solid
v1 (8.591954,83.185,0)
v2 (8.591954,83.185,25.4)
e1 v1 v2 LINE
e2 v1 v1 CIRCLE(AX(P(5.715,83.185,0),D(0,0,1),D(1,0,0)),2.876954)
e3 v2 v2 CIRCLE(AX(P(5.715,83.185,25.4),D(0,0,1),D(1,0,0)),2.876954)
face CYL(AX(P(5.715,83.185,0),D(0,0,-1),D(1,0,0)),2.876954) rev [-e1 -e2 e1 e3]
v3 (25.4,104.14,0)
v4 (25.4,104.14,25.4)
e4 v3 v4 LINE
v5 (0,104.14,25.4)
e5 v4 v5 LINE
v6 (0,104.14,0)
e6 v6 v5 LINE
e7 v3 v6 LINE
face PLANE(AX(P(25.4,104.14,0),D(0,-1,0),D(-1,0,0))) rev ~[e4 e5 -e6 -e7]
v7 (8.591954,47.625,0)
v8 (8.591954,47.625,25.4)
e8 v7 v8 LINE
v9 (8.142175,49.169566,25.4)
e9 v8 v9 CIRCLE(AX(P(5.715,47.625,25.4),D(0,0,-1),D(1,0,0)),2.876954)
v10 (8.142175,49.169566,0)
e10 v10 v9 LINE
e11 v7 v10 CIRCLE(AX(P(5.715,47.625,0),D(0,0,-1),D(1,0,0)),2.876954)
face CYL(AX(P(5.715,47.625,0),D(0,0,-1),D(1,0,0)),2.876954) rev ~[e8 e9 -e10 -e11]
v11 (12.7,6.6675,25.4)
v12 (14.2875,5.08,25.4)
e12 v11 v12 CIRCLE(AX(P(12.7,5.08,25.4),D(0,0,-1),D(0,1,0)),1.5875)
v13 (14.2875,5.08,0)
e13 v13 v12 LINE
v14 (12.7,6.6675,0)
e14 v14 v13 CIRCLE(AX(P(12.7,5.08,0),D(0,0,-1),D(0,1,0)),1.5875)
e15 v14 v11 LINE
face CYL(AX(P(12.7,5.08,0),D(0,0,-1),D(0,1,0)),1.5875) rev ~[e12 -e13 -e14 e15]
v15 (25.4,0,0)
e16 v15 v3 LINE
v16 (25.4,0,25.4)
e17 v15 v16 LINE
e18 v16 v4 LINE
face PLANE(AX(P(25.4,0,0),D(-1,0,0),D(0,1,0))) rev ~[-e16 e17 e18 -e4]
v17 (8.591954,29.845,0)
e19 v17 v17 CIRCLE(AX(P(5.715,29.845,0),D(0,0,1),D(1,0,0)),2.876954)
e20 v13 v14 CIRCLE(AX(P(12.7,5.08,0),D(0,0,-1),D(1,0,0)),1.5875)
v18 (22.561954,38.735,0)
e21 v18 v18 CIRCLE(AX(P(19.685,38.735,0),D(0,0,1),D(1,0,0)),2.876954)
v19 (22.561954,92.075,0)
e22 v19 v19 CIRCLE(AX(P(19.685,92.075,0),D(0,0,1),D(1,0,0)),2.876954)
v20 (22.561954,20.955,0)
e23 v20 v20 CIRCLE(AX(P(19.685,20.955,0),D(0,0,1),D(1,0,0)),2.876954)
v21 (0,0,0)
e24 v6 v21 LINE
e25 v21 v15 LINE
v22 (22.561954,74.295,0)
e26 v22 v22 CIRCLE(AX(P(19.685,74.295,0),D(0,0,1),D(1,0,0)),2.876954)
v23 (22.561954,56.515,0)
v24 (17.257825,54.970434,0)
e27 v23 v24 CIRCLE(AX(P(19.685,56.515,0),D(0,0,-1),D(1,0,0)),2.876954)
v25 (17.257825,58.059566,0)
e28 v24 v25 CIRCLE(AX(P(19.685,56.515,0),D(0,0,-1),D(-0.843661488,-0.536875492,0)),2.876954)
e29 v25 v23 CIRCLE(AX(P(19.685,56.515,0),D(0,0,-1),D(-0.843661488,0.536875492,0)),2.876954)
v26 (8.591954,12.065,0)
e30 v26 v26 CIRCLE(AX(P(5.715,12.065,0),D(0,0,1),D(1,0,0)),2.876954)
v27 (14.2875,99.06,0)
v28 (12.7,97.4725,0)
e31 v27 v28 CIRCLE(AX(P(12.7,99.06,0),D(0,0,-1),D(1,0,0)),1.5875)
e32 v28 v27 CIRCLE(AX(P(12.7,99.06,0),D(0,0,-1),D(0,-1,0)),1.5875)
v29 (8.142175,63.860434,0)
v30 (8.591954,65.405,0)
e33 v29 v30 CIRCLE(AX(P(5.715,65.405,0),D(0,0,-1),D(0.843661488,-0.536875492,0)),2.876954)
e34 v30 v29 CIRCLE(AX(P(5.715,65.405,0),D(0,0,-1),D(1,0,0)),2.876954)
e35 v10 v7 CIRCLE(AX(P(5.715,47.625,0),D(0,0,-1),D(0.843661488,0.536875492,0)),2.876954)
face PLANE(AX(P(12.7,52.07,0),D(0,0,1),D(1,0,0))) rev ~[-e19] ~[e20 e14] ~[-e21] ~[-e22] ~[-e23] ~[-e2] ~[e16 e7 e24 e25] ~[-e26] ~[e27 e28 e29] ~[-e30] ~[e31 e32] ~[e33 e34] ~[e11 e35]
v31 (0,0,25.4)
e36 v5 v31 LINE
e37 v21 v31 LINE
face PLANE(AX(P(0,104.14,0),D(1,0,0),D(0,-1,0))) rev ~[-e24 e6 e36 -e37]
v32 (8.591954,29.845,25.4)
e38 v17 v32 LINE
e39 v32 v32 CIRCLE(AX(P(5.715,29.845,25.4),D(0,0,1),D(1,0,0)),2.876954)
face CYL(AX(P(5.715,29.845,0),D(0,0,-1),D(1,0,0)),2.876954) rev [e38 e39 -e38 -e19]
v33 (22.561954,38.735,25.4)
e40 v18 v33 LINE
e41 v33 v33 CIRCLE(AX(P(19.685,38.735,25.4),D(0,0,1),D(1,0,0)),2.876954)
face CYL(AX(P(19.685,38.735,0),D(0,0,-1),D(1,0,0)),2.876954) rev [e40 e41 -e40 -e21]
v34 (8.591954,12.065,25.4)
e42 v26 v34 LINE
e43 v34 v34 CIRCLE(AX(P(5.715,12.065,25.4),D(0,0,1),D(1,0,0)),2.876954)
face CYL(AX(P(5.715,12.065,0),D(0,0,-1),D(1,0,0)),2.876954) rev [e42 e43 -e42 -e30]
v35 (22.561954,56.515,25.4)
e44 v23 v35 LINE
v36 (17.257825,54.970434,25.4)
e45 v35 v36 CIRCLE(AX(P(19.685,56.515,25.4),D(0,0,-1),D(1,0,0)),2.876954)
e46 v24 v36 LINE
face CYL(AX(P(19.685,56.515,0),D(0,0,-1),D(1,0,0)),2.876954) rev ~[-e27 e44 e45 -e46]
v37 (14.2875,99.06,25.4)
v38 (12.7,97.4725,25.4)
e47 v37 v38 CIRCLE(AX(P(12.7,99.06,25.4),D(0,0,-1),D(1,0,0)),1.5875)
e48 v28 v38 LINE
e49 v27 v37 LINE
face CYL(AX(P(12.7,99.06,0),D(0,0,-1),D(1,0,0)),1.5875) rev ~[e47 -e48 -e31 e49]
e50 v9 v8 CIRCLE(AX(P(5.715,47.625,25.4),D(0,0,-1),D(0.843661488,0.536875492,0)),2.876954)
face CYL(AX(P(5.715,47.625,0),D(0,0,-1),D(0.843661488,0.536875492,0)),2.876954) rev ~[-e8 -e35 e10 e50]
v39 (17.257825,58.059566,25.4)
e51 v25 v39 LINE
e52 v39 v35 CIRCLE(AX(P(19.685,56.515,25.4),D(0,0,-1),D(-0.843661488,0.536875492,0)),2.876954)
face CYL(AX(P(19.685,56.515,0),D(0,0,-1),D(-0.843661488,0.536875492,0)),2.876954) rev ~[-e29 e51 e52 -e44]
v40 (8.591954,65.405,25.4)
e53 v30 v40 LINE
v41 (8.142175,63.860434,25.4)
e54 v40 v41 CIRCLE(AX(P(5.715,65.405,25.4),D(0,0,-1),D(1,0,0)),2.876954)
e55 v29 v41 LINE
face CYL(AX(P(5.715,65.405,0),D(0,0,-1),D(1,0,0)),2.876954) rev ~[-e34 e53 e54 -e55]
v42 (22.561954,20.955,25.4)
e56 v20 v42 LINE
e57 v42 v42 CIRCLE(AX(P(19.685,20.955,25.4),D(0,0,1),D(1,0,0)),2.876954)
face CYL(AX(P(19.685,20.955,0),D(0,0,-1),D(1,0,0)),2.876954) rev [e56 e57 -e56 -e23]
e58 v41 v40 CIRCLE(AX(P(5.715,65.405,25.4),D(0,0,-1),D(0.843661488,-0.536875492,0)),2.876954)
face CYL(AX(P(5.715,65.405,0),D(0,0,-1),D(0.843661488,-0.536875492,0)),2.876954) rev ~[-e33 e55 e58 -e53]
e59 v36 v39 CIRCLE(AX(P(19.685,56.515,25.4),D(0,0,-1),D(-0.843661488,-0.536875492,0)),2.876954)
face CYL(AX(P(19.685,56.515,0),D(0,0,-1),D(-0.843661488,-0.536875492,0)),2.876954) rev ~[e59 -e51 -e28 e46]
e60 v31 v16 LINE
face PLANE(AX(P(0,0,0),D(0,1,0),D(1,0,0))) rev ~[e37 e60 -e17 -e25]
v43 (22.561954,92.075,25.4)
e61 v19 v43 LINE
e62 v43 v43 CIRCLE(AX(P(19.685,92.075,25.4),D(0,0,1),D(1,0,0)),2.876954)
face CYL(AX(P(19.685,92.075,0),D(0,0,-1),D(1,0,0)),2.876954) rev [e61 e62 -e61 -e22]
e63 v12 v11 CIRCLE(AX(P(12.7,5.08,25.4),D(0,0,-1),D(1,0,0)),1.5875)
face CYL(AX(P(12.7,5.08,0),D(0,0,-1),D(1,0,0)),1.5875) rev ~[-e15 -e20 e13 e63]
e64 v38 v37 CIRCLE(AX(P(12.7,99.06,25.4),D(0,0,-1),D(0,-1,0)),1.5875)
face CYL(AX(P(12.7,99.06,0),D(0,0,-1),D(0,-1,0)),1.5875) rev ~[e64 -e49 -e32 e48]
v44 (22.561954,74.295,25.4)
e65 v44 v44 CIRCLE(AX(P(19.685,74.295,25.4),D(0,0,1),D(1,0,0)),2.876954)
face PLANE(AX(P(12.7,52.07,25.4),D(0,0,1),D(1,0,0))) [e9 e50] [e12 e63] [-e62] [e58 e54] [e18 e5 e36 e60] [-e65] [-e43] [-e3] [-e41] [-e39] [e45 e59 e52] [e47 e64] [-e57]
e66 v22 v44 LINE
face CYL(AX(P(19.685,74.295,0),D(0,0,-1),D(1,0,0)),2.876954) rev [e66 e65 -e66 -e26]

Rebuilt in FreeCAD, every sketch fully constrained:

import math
import FreeCAD as App
import Part
import Sketcher
from FreeCAD import Vector
Q = App.Units.Quantity

doc = App.newDocument("Part")
params = doc.addObject("Spreadsheet::Sheet", "Params")
for row, (alias, value) in enumerate([
    ("sketch1_width", "1 in"),
    ("sketch1_height", "4.1 in"),
    ("sketch1_radius", "0.0625 in"),
    ("pad1_length", "1 in"),
], start=1):
    params.set(f"A{row}", alias)
    params.set(f"B{row}", "=" + value)
    params.setAlias(f"B{row}", alias)

body = doc.addObject("PartDesign::Body", "Body")

# Sketch on XY plane
sketch1 = body.newObject("Sketcher::SketchObject", "Sketch")
sketch1.AttachmentSupport = (doc.getObject("XY_Plane"), [""])
sketch1.MapMode = "FlatFace"
sketch1.addGeometry(Part.LineSegment(Vector(0, 0, 0), Vector(25.4, 0, 0)), False)
sketch1.addGeometry(Part.LineSegment(Vector(25.4, 0, 0), Vector(25.4, 104.1, 0)), False)
sketch1.addGeometry(Part.LineSegment(Vector(25.4, 104.1, 0), Vector(0, 104.1, 0)), False)
sketch1.addGeometry(Part.LineSegment(Vector(0, 104.1, 0), Vector(0, 0, 0)), False)
sketch1.addGeometry(Part.Circle(Vector(5.7, 12.1, 0), Vector(0, 0, 1), 2.9), False)
sketch1.addGeometry(Part.Circle(Vector(5.7, 29.8, 0), Vector(0, 0, 1), 2.9), False)
sketch1.addGeometry(Part.ArcOfCircle(Part.Circle(Vector(5.7, 47.6, 0), Vector(0, 0, 1), 2.9), math.radians(0), math.radians(32)), False)
sketch1.addGeometry(Part.ArcOfCircle(Part.Circle(Vector(5.7, 47.6, 0), Vector(0, 0, 1), 2.9), math.radians(32), math.radians(360)), False)
sketch1.addGeometry(Part.ArcOfCircle(Part.Circle(Vector(12.7, 5.1, 0), Vector(0, 0, 1), 1.6), math.radians(0), math.radians(90)), False)
sketch1.addGeometry(Part.ArcOfCircle(Part.Circle(Vector(12.7, 5.1, 0), Vector(0, 0, 1), 1.6), math.radians(90), math.radians(360)), False)
sketch1.addGeometry(Part.Circle(Vector(19.7, 21, 0), Vector(0, 0, 1), 2.9), False)
sketch1.addGeometry(Part.Circle(Vector(19.7, 38.7, 0), Vector(0, 0, 1), 2.9), False)
sketch1.addGeometry(Part.ArcOfCircle(Part.Circle(Vector(5.7, 65.4, 0), Vector(0, 0, 1), 2.9), math.radians(0), math.radians(328)), False)
sketch1.addGeometry(Part.ArcOfCircle(Part.Circle(Vector(5.7, 65.4, 0), Vector(0, 0, 1), 2.9), math.radians(-32), math.radians(0)), False)
sketch1.addGeometry(Part.Circle(Vector(5.7, 83.2, 0), Vector(0, 0, 1), 2.9), False)
sketch1.addGeometry(Part.ArcOfCircle(Part.Circle(Vector(19.7, 56.5, 0), Vector(0, 0, 1), 2.9), math.radians(-148), math.radians(0)), False)
sketch1.addGeometry(Part.ArcOfCircle(Part.Circle(Vector(19.7, 56.5, 0), Vector(0, 0, 1), 2.9), math.radians(148), math.radians(212)), False)
sketch1.addGeometry(Part.ArcOfCircle(Part.Circle(Vector(19.7, 56.5, 0), Vector(0, 0, 1), 2.9), math.radians(0), math.radians(148)), False)
sketch1.addGeometry(Part.Circle(Vector(19.7, 74.3, 0), Vector(0, 0, 1), 2.9), False)
sketch1.addGeometry(Part.ArcOfCircle(Part.Circle(Vector(12.7, 99.1, 0), Vector(0, 0, 1), 1.6), math.radians(0), math.radians(270)), False)
sketch1.addGeometry(Part.ArcOfCircle(Part.Circle(Vector(12.7, 99.1, 0), Vector(0, 0, 1), 1.6), math.radians(-90), math.radians(0)), False)
sketch1.addGeometry(Part.Circle(Vector(19.7, 92.1, 0), Vector(0, 0, 1), 2.9), False)
sketch1.addConstraint(Sketcher.Constraint("Coincident", 0, 2, 1, 1))
sketch1.addConstraint(Sketcher.Constraint("Coincident", 1, 2, 2, 1))
sketch1.addConstraint(Sketcher.Constraint("Coincident", 2, 2, 3, 1))
sketch1.addConstraint(Sketcher.Constraint("Coincident", 3, 2, 0, 1))
sketch1.addConstraint(Sketcher.Constraint("Tangent", 6, 1, 7, 2))
sketch1.addConstraint(Sketcher.Constraint("Coincident", 7, 1, 6, 2))
sketch1.addConstraint(Sketcher.Constraint("Tangent", 8, 1, 9, 2))
sketch1.addConstraint(Sketcher.Constraint("Coincident", 9, 1, 8, 2))
sketch1.addConstraint(Sketcher.Constraint("Tangent", 12, 1, 13, 2))
sketch1.addConstraint(Sketcher.Constraint("Coincident", 13, 1, 12, 2))
sketch1.addConstraint(Sketcher.Constraint("Tangent", 15, 1, 16, 2))
sketch1.addConstraint(Sketcher.Constraint("Tangent", 16, 1, 17, 2))
sketch1.addConstraint(Sketcher.Constraint("Tangent", 17, 1, 15, 2))
sketch1.addConstraint(Sketcher.Constraint("Tangent", 19, 1, 20, 2))
sketch1.addConstraint(Sketcher.Constraint("Coincident", 20, 1, 19, 2))
sketch1.addConstraint(Sketcher.Constraint("Horizontal", 0))
sketch1.addConstraint(Sketcher.Constraint("Vertical", 1))
sketch1.addConstraint(Sketcher.Constraint("Horizontal", 2))
sketch1.addConstraint(Sketcher.Constraint("Vertical", 3))
sketch1.addConstraint(Sketcher.Constraint("Coincident", 3, 2, -1, 1))
sketch1.addConstraint(Sketcher.Constraint("Equal", 4, 5))
sketch1.addConstraint(Sketcher.Constraint("Equal", 5, 6))
sketch1.addConstraint(Sketcher.Constraint("Equal", 7, 10))
sketch1.addConstraint(Sketcher.Constraint("Equal", 10, 11))
sketch1.addConstraint(Sketcher.Constraint("Equal", 11, 12))
sketch1.addConstraint(Sketcher.Constraint("Equal", 13, 14))
sketch1.addConstraint(Sketcher.Constraint("Equal", 14, 15))
sketch1.addConstraint(Sketcher.Constraint("Equal", 17, 18))
sketch1.addConstraint(Sketcher.Constraint("Equal", 9, 19))
sketch1.addConstraint(Sketcher.Constraint("Equal", 18, 21))
sketch1.addConstraint(Sketcher.Constraint("Horizontal", 7, 3, 6, 1))
sketch1.addConstraint(Sketcher.Constraint("Horizontal", 9, 3, 8, 1))
sketch1.addConstraint(Sketcher.Constraint("Horizontal", 13, 3, 12, 1))
sketch1.addConstraint(Sketcher.Constraint("Horizontal", 16, 3, 17, 1))
sketch1.addConstraint(Sketcher.Constraint("Horizontal", 20, 3, 19, 1))
sketch1.addConstraint(Sketcher.Constraint("Vertical", 4, 3, 5, 3))
sketch1.addConstraint(Sketcher.Constraint("Vertical", 5, 3, 6, 3))
sketch1.addConstraint(Sketcher.Constraint("Vertical", 10, 3, 11, 3))
sketch1.addConstraint(Sketcher.Constraint("Vertical", 7, 3, 12, 3))
sketch1.addConstraint(Sketcher.Constraint("Vertical", 13, 3, 14, 3))
sketch1.addConstraint(Sketcher.Constraint("Vertical", 11, 3, 15, 3))
sketch1.addConstraint(Sketcher.Constraint("Vertical", 17, 3, 18, 3))
sketch1.addConstraint(Sketcher.Constraint("Vertical", 9, 3, 19, 3))
sketch1.addConstraint(Sketcher.Constraint("Vertical", 18, 3, 21, 3))
sketch1.addConstraint(Sketcher.Constraint("Vertical", 20, 3, 9, 1))
sketch1.addConstraint(Sketcher.Constraint("Vertical", 7, 1, 13, 1))
sketch1.addConstraint(Sketcher.Constraint("Vertical", 15, 1, 16, 1))
sketch1.addConstraint(Sketcher.Constraint("Vertical", 9, 1, 20, 1))
sketch1.addConstraint(Sketcher.Constraint("DistanceX", 0, 1, 0, 2, Q("1 in")))
sketch1.addConstraint(Sketcher.Constraint("DistanceY", 1, 1, 1, 2, Q("4.1 in")))
sketch1.addConstraint(Sketcher.Constraint("Radius", 8, Q("0.0625 in")))
sketch1.addConstraint(Sketcher.Constraint("DistanceX", -1, 1, 8, 3, Q("0.5 in")))
sketch1.addConstraint(Sketcher.Constraint("DistanceY", -1, 1, 8, 3, Q("0.2 in")))
sketch1.addConstraint(Sketcher.Constraint("DistanceY", -1, 1, 19, 3, Q("3.9 in")))
sketch1.addConstraint(Sketcher.Constraint("DistanceY", 4, 3, 5, 3, Q("0.7 in")))
sketch1.addConstraint(Sketcher.Constraint("DistanceY", 5, 3, 6, 3, Q("0.7 in")))
sketch1.addConstraint(Sketcher.Constraint("DistanceY", 10, 3, 11, 3, Q("0.7 in")))
sketch1.addConstraint(Sketcher.Constraint("DistanceY", 6, 3, 12, 3, Q("0.7 in")))
sketch1.addConstraint(Sketcher.Constraint("DistanceY", 12, 3, 14, 3, Q("0.7 in")))
sketch1.addConstraint(Sketcher.Constraint("DistanceY", 11, 3, 15, 3, Q("0.7 in")))
sketch1.addConstraint(Sketcher.Constraint("DistanceY", 15, 3, 18, 3, Q("0.7 in")))
sketch1.addConstraint(Sketcher.Constraint("DistanceY", 18, 3, 21, 3, Q("0.7 in")))
sketch1.addConstraint(Sketcher.Constraint("DistanceX", 4, 3, 10, 3, Q("0.55 in")))
sketch1.addConstraint(Sketcher.Constraint("DistanceY", 4, 3, 10, 3, Q("0.35 in")))
sketch1.addConstraint(Sketcher.Constraint("DistanceX", -1, 1, 4, 3, Q("0.225 in")))
sketch1.addConstraint(Sketcher.Constraint("DistanceY", -1, 1, 4, 3, Q("0.475 in")))
sketch1.addConstraint(Sketcher.Constraint("Diameter", 4, Q("5.753908 mm")))
sketch1.addConstraint(Sketcher.Constraint("DistanceX", 7, 1, 6, 1, Q("0.449779 mm")))
sketch1.addConstraint(Sketcher.Constraint("DistanceX", 7, 1, 15, 1, Q("9.11565 mm")))
sketch1.setExpression("Constraints[48]", "Params.sketch1_width")
sketch1.setExpression("Constraints[49]", "Params.sketch1_height")
sketch1.setExpression("Constraints[50]", "Params.sketch1_radius")
pad1 = body.newObject("PartDesign::Pad", "Pad")
pad1.Profile = sketch1
pad1.setExpression("Length", "Params.pad1_length")

doc.recompute()
